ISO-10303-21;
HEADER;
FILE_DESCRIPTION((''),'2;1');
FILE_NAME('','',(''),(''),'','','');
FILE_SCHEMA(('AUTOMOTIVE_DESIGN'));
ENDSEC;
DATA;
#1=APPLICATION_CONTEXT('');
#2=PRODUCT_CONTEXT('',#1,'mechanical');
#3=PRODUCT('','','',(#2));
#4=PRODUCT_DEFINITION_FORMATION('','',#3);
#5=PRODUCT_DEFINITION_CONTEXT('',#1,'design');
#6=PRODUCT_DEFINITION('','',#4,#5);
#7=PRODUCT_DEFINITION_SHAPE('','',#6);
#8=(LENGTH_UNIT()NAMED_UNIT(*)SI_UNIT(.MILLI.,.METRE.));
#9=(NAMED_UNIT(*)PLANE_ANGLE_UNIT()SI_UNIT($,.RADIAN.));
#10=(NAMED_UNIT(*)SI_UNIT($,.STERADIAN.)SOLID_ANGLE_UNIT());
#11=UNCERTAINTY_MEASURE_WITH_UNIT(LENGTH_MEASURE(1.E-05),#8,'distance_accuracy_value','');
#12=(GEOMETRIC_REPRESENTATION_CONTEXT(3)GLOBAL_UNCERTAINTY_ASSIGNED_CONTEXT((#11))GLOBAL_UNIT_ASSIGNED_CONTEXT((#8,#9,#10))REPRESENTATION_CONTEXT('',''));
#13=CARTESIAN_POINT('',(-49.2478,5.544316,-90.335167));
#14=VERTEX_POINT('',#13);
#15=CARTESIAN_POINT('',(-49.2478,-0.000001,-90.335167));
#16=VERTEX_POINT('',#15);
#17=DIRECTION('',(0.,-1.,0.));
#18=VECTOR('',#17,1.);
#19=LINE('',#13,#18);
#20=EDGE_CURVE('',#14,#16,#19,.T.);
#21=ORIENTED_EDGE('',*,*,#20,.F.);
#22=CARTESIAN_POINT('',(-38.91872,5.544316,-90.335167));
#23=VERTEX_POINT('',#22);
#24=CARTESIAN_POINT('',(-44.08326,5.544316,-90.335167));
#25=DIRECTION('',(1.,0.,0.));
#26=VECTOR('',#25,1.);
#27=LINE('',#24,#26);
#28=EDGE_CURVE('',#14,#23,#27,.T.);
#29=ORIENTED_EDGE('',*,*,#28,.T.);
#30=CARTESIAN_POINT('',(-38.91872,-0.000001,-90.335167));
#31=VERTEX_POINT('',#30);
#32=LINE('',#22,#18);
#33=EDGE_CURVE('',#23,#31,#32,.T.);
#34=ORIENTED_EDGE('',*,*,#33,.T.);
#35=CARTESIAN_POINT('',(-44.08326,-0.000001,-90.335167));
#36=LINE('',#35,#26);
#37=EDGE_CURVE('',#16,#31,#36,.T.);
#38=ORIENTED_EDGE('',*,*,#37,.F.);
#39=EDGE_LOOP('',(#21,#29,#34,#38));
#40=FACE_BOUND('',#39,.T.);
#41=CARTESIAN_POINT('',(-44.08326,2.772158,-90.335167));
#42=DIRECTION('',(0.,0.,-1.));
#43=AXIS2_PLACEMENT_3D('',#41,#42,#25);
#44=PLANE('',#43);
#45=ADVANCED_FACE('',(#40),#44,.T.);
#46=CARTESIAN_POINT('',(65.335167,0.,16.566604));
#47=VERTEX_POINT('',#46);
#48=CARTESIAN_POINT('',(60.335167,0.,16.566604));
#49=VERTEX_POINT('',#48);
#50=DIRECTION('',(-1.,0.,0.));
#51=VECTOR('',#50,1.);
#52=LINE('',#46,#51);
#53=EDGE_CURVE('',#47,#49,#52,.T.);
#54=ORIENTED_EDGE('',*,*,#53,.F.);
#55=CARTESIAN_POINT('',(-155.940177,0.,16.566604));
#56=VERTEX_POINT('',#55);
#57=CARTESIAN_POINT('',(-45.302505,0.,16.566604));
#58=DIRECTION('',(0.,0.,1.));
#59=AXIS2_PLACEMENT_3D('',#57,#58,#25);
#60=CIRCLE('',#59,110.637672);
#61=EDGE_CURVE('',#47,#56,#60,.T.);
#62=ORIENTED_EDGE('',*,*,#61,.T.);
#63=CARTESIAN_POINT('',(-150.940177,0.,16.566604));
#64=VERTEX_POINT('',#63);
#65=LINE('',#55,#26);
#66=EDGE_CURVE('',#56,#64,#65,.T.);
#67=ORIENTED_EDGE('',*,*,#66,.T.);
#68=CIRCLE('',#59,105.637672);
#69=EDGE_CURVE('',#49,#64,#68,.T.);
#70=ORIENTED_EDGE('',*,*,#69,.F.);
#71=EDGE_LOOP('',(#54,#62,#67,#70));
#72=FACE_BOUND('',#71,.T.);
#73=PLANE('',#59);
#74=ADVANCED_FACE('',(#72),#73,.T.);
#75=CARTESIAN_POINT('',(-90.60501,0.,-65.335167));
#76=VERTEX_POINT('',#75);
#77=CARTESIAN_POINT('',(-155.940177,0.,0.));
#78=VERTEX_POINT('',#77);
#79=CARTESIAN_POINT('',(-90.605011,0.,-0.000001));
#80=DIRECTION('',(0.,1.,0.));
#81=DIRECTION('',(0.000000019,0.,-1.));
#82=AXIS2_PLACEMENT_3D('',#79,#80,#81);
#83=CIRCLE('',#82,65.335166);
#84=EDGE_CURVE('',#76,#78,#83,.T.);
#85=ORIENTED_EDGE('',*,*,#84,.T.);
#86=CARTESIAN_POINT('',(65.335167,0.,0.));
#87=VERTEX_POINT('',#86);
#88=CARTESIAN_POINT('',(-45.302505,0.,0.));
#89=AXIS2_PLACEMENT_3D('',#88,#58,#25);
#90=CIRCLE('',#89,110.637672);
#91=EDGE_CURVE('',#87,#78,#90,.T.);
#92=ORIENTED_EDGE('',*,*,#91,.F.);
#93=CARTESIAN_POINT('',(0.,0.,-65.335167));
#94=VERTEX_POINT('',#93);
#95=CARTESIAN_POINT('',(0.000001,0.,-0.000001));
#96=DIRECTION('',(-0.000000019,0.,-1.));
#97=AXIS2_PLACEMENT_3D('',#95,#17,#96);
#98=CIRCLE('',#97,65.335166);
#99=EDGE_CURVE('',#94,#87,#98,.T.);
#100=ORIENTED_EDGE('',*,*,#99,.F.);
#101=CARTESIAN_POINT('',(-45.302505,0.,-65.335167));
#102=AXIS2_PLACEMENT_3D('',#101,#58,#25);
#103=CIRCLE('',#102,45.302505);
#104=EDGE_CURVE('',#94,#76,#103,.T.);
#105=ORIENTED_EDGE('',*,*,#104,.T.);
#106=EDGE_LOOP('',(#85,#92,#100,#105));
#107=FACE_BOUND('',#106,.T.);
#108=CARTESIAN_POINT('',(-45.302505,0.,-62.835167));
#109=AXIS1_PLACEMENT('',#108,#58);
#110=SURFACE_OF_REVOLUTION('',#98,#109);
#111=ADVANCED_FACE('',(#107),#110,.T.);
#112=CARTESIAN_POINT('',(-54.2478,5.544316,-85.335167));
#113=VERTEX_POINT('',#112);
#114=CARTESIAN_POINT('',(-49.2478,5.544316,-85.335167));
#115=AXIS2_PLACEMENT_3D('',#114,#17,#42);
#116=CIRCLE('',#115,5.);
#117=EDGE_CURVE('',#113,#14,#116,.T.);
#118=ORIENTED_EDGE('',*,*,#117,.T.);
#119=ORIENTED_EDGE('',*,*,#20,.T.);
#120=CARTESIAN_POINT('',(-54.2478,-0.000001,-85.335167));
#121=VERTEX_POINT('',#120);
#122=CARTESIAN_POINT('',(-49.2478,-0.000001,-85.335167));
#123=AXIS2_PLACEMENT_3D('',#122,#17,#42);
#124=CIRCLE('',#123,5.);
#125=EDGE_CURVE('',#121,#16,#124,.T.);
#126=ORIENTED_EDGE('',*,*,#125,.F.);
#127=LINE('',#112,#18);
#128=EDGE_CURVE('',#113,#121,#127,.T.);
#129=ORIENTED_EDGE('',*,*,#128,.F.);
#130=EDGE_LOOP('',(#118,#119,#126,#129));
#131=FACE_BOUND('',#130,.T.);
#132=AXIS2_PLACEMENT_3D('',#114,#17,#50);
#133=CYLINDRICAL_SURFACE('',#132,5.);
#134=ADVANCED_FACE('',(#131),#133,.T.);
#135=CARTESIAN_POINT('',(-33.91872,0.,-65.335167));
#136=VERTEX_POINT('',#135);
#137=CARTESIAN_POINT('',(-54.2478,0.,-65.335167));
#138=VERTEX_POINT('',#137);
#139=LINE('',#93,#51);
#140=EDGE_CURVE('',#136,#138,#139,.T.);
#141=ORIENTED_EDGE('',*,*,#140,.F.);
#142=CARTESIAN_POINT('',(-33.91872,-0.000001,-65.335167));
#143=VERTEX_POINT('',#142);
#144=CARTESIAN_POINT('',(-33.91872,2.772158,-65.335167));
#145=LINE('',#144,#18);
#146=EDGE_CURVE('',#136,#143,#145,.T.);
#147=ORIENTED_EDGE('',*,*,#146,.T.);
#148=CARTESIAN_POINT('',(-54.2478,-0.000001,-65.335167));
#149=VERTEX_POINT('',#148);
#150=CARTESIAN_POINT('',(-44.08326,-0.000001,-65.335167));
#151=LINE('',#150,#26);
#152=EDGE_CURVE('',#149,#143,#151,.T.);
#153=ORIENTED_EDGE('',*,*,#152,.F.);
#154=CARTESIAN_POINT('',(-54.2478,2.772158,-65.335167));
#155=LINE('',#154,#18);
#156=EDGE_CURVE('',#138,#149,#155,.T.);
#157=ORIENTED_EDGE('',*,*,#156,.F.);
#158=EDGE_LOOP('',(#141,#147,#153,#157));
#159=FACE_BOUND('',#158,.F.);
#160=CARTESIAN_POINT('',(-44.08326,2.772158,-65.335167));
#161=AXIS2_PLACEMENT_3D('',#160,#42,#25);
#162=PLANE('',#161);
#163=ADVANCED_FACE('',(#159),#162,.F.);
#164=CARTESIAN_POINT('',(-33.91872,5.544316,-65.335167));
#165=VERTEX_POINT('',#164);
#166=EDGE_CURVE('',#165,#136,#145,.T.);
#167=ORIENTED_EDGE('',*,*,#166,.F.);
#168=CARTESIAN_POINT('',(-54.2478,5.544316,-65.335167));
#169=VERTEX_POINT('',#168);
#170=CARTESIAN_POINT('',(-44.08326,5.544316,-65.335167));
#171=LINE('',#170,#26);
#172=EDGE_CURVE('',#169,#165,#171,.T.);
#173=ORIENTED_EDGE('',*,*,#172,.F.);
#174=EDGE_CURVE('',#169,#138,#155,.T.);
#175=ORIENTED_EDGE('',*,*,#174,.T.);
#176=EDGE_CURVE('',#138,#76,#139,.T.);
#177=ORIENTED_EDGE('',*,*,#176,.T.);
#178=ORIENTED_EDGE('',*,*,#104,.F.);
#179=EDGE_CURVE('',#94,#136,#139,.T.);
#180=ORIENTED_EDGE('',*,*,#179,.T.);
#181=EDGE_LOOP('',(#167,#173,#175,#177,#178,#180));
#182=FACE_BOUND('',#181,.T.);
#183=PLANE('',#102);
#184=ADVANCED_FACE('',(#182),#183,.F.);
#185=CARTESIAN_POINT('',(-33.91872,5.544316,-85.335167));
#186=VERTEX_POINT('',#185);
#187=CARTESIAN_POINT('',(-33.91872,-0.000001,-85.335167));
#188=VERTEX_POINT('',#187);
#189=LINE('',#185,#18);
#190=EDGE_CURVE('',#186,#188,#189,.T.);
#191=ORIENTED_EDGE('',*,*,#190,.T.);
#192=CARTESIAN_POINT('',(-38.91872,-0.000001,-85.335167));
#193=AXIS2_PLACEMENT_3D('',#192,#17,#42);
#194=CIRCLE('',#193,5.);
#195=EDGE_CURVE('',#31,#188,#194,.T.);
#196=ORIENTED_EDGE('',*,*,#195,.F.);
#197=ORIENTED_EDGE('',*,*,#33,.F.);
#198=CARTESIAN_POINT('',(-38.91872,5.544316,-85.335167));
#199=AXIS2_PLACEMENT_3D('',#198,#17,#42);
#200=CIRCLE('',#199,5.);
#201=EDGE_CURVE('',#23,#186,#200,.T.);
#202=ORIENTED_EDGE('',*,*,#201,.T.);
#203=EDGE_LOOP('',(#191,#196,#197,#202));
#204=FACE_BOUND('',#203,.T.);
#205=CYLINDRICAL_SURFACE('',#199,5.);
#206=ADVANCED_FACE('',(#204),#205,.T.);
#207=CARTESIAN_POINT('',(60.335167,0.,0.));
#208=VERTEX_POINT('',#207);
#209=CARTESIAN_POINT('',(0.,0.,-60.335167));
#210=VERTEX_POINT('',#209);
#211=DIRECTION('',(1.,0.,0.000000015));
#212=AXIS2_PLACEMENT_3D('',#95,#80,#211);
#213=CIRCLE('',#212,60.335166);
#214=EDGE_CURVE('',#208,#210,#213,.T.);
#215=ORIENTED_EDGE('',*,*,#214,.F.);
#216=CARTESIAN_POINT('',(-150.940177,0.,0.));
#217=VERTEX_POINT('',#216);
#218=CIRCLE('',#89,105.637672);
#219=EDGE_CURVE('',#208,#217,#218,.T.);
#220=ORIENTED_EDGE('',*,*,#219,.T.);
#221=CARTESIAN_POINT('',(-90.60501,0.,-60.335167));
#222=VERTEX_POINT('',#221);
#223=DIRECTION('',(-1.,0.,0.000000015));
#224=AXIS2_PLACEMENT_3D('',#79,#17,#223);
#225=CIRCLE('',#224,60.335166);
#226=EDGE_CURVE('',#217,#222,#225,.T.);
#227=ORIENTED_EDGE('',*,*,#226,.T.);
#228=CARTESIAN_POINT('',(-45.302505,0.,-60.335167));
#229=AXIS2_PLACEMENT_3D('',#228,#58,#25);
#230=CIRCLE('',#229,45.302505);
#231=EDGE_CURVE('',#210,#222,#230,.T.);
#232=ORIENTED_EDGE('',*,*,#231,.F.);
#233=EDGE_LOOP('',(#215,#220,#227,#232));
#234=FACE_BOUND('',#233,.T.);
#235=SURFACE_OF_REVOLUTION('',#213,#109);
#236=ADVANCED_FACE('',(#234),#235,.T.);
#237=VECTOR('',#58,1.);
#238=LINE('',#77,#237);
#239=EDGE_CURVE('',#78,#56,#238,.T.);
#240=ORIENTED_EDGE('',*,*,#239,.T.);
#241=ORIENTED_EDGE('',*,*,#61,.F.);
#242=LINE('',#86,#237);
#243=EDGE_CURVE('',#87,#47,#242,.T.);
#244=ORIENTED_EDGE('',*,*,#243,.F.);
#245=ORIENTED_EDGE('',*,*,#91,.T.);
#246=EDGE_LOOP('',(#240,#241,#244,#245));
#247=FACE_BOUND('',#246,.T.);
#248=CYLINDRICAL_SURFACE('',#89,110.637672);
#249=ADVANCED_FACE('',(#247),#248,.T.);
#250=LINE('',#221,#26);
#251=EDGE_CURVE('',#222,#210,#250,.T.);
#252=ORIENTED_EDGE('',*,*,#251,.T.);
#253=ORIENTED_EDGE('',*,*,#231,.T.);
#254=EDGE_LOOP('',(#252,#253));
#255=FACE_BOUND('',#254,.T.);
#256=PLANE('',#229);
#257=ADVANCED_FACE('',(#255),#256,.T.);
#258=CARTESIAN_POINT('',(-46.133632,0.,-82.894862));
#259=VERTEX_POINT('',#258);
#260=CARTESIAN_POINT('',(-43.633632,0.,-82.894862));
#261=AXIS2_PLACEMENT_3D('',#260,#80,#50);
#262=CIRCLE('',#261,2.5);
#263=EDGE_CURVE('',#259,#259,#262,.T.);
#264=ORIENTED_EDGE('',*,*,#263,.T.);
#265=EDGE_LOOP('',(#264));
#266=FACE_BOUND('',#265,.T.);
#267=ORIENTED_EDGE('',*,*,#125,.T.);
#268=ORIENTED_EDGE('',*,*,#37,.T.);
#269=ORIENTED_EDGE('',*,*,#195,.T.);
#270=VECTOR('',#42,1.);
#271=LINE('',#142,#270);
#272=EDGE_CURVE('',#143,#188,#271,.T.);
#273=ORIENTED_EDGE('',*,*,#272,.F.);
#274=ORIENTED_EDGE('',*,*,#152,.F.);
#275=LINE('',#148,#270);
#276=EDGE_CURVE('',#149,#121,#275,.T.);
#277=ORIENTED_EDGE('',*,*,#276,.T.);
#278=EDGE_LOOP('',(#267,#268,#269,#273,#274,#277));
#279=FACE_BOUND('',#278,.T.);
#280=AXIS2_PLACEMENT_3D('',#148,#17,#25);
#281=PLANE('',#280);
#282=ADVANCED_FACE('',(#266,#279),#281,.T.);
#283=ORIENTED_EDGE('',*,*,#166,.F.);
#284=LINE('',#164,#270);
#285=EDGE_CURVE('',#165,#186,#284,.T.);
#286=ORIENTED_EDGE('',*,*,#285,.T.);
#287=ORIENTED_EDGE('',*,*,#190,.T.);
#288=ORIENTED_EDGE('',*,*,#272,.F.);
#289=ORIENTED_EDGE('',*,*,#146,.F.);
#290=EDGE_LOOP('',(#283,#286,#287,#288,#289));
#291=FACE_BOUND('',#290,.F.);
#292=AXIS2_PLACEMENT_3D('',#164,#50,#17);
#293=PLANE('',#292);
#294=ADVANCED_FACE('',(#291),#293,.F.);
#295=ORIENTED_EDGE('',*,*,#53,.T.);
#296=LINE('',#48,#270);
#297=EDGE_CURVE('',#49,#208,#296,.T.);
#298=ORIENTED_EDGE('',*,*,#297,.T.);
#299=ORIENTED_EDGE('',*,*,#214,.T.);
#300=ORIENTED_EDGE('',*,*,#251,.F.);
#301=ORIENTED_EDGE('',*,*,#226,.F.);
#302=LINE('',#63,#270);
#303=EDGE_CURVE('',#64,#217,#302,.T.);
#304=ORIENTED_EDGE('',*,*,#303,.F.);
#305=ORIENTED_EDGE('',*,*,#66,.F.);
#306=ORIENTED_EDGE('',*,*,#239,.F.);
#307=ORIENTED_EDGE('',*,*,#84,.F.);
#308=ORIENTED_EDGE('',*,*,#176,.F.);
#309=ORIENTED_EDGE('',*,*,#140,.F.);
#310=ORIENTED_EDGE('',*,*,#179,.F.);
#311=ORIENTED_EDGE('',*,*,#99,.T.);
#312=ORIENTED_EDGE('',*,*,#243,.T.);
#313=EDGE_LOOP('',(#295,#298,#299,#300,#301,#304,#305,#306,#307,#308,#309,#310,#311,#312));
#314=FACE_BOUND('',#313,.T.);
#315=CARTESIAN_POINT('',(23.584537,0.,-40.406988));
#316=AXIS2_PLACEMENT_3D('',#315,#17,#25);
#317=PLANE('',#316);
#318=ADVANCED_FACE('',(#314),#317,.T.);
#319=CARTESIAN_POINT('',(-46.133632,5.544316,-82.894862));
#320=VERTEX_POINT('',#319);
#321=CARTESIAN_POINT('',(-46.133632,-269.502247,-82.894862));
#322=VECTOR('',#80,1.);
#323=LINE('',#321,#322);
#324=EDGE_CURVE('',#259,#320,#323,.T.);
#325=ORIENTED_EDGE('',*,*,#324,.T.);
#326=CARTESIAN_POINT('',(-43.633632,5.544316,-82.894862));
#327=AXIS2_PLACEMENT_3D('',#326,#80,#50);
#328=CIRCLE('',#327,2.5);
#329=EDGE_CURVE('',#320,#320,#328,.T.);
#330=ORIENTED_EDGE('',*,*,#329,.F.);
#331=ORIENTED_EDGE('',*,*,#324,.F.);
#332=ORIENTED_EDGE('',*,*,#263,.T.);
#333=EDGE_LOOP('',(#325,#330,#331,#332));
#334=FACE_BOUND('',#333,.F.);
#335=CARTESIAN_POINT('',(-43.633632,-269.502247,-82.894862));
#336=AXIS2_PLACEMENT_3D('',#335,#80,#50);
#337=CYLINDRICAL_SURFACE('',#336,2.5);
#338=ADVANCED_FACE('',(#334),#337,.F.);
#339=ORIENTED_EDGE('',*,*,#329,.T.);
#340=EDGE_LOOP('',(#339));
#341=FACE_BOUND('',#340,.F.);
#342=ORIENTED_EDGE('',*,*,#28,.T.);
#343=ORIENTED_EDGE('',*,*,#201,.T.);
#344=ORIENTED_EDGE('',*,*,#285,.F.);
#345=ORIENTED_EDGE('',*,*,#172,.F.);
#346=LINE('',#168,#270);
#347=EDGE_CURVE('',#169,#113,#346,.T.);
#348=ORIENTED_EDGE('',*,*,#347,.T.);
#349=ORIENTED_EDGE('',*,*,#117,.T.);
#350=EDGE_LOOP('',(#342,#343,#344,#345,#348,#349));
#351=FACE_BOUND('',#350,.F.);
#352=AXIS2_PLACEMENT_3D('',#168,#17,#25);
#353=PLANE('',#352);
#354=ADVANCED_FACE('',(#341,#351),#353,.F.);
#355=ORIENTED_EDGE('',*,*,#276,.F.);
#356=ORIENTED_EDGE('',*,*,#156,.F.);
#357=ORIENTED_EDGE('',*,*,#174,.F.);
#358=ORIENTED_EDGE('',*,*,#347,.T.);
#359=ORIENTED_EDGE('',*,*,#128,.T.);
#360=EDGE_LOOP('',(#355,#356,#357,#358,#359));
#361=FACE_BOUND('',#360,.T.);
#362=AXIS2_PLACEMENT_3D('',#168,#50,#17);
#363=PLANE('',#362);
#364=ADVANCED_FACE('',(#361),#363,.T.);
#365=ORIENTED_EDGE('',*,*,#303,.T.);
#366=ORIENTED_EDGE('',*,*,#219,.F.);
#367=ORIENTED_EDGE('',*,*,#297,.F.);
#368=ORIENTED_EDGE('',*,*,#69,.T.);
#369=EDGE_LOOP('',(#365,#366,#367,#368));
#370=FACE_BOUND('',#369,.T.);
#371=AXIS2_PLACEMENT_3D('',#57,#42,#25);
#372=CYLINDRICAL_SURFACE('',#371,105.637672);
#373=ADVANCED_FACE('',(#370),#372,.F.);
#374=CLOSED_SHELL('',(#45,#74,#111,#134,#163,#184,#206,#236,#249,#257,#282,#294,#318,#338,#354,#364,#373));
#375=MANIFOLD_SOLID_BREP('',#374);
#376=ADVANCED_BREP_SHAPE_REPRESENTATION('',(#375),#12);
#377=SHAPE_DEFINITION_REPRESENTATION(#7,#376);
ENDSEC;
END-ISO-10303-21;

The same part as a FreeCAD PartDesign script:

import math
import FreeCAD as App
import Part
import Sketcher
from FreeCAD import Vector


def edges_at(feature, points):
    """Names of the edges that pass closest to the given points."""
    edges = feature.Shape.Edges
    near = lambda p: min(range(len(edges)), key=lambda i: edges[i].distToShape(Part.Vertex(*p))[0])
    return sorted({f"Edge{near(p) + 1}" for p in points})


def add_polygon(sketch, points):
    """Adds a closed chain of lines whose ends are joined by coincident constraints."""
    first, n = sketch.GeometryCount, len(points)
    for a, b in zip(points, points[1:] + points[:1]):
        sketch.addGeometry(Part.LineSegment(App.Vector(*a, 0), App.Vector(*b, 0)), False)
    for i in range(n):
        sketch.addConstraint(Sketcher.Constraint("Coincident", first + i, 2, first + (i + 1) % n, 1))

doc = App.newDocument("Part")
params = doc.addObject("Spreadsheet::Sheet", "Params")
for row, (alias, value) in enumerate([
    ("sketch1_width", "5 mm"),
    ("revolution_angle", "180 deg"),
    ("pad1_length", "25 mm"),
    ("fillet_radius", "5 mm"),
    ("sketch3_diameter", "5 mm"),
    ("hole_diameter", "5 mm"),
], start=1):
    params.set(f"A{row}", alias)
    params.set(f"B{row}", "=" + value)
    params.setAlias(f"B{row}", alias)

body = doc.addObject("PartDesign::Body", "Body")

sketch1 = body.newObject("Sketcher::SketchObject", "Sketch")
sketch1.AttachmentSupport = (doc.getObject("XZ_Plane"), [""])
sketch1.MapMode = "FlatFace"
sketch1.addGeometry(Part.LineSegment(Vector(-45, -65, 0), Vector(0, -65, 0)), False)
sketch1.addGeometry(Part.ArcOfCircle(Part.Circle(Vector(0, 0, 0), Vector(0, 0, 1), 65), math.radians(-90), math.radians(0)), False)
sketch1.addGeometry(Part.LineSegment(Vector(65, 0, 0), Vector(65, 17, 0)), False)
sketch1.addGeometry(Part.LineSegment(Vector(65, 17, 0), Vector(60, 17, 0)), False)
sketch1.addGeometry(Part.LineSegment(Vector(60, 17, 0), Vector(60, 0, 0)), False)
sketch1.addGeometry(Part.ArcOfCircle(Part.Circle(Vector(0, 0, 0), Vector(0, 0, 1), 60), math.radians(-90), math.radians(0)), False)
sketch1.addGeometry(Part.LineSegment(Vector(0, -60, 0), Vector(-45, -60, 0)), False)
sketch1.addGeometry(Part.LineSegment(Vector(-45, -60, 0), Vector(-45, -65, 0)), False)
sketch1.addGeometry(Part.LineSegment(Vector(-45, -65, 0), Vector(-45, 17, 0)), True)
sketch1.addConstraint(Sketcher.Constraint("Tangent", 0, 2, 1, 1))
sketch1.addConstraint(Sketcher.Constraint("Tangent", 1, 2, 2, 1))
sketch1.addConstraint(Sketcher.Constraint("Coincident", 2, 2, 3, 1))
sketch1.addConstraint(Sketcher.Constraint("Coincident", 3, 2, 4, 1))
sketch1.addConstraint(Sketcher.Constraint("Tangent", 4, 2, 5, 2))
sketch1.addConstraint(Sketcher.Constraint("Tangent", 5, 1, 6, 1))
sketch1.addConstraint(Sketcher.Constraint("Coincident", 6, 2, 7, 1))
sketch1.addConstraint(Sketcher.Constraint("Coincident", 7, 2, 0, 1))
sketch1.addConstraint(Sketcher.Constraint("Horizontal", 0))
sketch1.addConstraint(Sketcher.Constraint("Vertical", 2))
sketch1.addConstraint(Sketcher.Constraint("Horizontal", 3))
sketch1.addConstraint(Sketcher.Constraint("Vertical", 4))
sketch1.addConstraint(Sketcher.Constraint("Horizontal", 6))
sketch1.addConstraint(Sketcher.Constraint("Vertical", 7))
sketch1.addConstraint(Sketcher.Constraint("Vertical", 8))
sketch1.addConstraint(Sketcher.Constraint("Coincident", 1, 3, -1, 1))
sketch1.addConstraint(Sketcher.Constraint("Coincident", 5, 3, -1, 1))
sketch1.addConstraint(Sketcher.Constraint("Coincident", 8, 1, 7, 2))
sketch1.addConstraint(Sketcher.Constraint("Horizontal", 3, 2, 8, 2))
sketch1.addConstraint(Sketcher.Constraint("DistanceX", 3, 2, 3, 1, 5.0))
sketch1.addConstraint(Sketcher.Constraint("Radius", 1, 65.335166))
sketch1.addConstraint(Sketcher.Constraint("DistanceY", 8, 1, 8, 2, 81.901771))
sketch1.addConstraint(Sketcher.Constraint("DistanceX", 0, 1, 0, 2, 45.302505))
sketch1.setExpression("Constraints[19]", "Params.sketch1_width")
revolution = body.newObject("PartDesign::Revolution", "Revolution")
revolution.Profile = sketch1
revolution.ReferenceAxis = (sketch1, ["Axis0"])
revolution.setExpression("Angle", "Params.revolution_angle")

sketch2 = body.newObject("Sketcher::SketchObject", "Sketch001")
sketch2.AttachmentSupport = (doc.getObject("XY_Plane"), [""])
sketch2.MapMode = "FlatFace"
sketch2.AttachmentOffset = App.Placement(Vector(0, 0, -65.335167), App.Rotation())
add_polygon(sketch2, [(-54, 0), (-54, 6), (-34, 6), (-34, 0)])
sketch2.addConstraint(Sketcher.Constraint("Vertical", 0))
sketch2.addConstraint(Sketcher.Constraint("Horizontal", 1))
sketch2.addConstraint(Sketcher.Constraint("Vertical", 2))
sketch2.addConstraint(Sketcher.Constraint("Horizontal", 3))
sketch2.addConstraint(Sketcher.Constraint("PointOnObject", 2, 2, -1))
sketch2.addConstraint(Sketcher.Constraint("DistanceX", 1, 1, 1, 2, 20.32908))
sketch2.addConstraint(Sketcher.Constraint("DistanceX", 0, 2, -1, 1, 54.2478))
sketch2.addConstraint(Sketcher.Constraint("DistanceY", 0, 1, 0, 2, 5.544317))
pad1 = body.newObject("PartDesign::Pad", "Pad")
pad1.Profile = sketch2
pad1.setExpression("Length", "Params.pad1_length")
pad1.Reversed = True
doc.recompute()

fillet = body.newObject("PartDesign::Fillet", "Fillet")
fillet.Base = (pad1, edges_at(pad1, [(-33.919, 2.772, -90.335), (-54.248, 2.772, -90.335)]))
fillet.setExpression("Radius", "Params.fillet_radius")

sketch3 = body.newObject("Sketcher::SketchObject", "Sketch002")
sketch3.AttachmentSupport = (doc.getObject("XZ_Plane"), [""])
sketch3.MapMode = "FlatFace"
sketch3.addGeometry(Part.Circle(Vector(-43.6, -82.9, 0), Vector(0, 0, 1), 2.5), False)
sketch3.addConstraint(Sketcher.Constraint("Diameter", 0, 5.0))
sketch3.addConstraint(Sketcher.Constraint("DistanceX", 0, 3, -1, 1, 43.633632))
sketch3.addConstraint(Sketcher.Constraint("DistanceY", 0, 3, -1, 1, 82.894862))
sketch3.setExpression("Constraints[0]", "Params.sketch3_diameter")
doc.recompute()
hole = body.newObject("PartDesign::Hole", "Hole")
hole.Profile = sketch3
hole.ThreadType = "None"
hole.setExpression("Diameter", "Params.hole_diameter")
hole.DepthType = "ThroughAll"

doc.recompute()
